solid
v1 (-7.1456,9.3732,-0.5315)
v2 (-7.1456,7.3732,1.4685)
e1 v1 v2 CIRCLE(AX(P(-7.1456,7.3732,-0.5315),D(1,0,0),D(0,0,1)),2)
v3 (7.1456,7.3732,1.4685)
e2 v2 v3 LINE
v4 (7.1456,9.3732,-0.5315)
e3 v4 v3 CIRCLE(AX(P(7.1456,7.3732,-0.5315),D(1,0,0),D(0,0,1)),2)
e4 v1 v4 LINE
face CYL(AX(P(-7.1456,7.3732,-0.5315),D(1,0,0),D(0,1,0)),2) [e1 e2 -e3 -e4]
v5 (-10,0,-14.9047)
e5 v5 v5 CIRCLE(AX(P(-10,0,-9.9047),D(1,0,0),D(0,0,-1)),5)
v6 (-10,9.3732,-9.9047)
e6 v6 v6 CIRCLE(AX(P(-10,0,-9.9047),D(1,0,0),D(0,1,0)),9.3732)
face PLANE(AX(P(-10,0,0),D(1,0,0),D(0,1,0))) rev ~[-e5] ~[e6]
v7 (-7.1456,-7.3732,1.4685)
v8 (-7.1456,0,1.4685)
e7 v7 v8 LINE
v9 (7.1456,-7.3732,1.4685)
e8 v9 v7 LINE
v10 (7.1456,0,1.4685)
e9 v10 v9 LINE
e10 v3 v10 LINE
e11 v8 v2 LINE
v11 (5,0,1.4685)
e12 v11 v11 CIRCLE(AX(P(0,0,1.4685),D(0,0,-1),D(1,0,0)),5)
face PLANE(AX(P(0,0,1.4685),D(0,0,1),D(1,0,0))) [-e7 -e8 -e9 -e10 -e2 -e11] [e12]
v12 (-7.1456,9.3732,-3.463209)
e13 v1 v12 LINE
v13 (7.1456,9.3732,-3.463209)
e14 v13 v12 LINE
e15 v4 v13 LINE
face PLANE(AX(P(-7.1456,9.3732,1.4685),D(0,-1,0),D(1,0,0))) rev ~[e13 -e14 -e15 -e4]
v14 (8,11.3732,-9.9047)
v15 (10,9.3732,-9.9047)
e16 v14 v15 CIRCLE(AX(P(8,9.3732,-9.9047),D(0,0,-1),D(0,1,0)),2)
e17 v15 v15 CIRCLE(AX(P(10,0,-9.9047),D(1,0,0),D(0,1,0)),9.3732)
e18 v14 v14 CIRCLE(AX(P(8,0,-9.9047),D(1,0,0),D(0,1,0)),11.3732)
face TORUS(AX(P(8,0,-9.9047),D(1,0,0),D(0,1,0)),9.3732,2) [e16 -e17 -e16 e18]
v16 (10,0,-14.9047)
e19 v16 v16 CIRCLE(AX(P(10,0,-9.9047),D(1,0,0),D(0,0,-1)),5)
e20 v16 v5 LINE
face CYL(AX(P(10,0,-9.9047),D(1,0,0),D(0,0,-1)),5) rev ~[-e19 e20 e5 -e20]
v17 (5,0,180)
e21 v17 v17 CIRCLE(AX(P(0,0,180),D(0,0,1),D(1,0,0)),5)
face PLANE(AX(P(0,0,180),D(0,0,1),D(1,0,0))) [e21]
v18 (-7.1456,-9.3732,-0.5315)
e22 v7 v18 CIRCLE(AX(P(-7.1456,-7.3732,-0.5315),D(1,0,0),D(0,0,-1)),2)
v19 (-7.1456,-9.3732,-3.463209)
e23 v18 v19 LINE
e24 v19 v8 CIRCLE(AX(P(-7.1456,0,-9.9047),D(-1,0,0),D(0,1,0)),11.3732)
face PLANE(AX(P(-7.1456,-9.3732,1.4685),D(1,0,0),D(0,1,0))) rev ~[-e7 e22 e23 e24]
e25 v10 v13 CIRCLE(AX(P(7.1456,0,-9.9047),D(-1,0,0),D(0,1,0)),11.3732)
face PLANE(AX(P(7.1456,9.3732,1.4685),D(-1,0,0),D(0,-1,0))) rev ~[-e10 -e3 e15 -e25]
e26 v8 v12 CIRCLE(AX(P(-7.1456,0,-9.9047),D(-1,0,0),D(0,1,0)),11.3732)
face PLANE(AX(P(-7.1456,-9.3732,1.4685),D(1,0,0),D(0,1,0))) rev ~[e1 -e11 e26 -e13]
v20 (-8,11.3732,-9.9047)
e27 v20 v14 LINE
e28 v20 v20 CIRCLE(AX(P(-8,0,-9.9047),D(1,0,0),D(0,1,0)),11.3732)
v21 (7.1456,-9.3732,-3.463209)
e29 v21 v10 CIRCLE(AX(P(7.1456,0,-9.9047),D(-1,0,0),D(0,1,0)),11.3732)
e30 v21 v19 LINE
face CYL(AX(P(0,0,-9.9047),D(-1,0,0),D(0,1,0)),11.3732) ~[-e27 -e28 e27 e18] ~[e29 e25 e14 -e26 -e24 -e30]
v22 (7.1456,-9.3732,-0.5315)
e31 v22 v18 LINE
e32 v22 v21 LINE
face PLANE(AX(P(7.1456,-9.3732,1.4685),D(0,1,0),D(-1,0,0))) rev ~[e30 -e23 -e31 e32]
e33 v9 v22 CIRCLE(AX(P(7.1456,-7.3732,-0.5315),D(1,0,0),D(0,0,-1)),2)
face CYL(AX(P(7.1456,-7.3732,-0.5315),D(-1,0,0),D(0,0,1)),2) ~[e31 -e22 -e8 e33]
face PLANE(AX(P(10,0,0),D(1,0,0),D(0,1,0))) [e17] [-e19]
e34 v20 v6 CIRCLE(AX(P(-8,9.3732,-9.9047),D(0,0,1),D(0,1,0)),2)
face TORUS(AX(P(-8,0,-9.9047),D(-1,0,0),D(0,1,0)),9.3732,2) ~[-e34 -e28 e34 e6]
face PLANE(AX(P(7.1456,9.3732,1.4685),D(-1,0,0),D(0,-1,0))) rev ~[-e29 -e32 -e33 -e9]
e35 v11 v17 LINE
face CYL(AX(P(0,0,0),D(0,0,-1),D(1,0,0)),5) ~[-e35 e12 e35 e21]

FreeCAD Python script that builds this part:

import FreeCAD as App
import Part
import Sketcher
Q = App.Units.Quantity


def edges_at(feature, points):
    """Names of the edges that pass closest to the given points."""
    edges = feature.Shape.Edges
    near = lambda p: min(range(len(edges)), key=lambda i: edges[i].distToShape(Part.Vertex(*p))[0])
    return sorted({f"Edge{near(p) + 1}" for p in points})

doc = App.newDocument("Part")
body = doc.addObject("PartDesign::Body", "Body")

# Sketch on XY plane
sketch1 = doc.addObject("Sketcher::SketchObject", "Sketch")
body.addObject(sketch1)
sketch1.AttachmentSupport = (doc.XY_Plane, [""])
sketch1.MapMode = "FlatFace"
sketch1.addGeometry(Part.Circle(App.Vector(0, 0, 0), App.Vector(0, 0, 1), 5), False)
sketch1.addConstraint(Sketcher.Constraint("Coincident", 0, 3, -1, 1))
sketch1.addConstraint(Sketcher.Constraint("Diameter", 0, Q("10 mm")))
pad1 = doc.addObject("PartDesign::Pad", "Pad")
body.addObject(pad1)
pad1.Profile = sketch1
pad1.Length = 180

# Sketch on YZ plane
sketch2 = doc.addObject("Sketcher::SketchObject", "Sketch001")
body.addObject(sketch2)
sketch2.AttachmentSupport = (doc.YZ_Plane, [""])
sketch2.MapMode = "FlatFace"
sketch2.addGeometry(Part.Circle(App.Vector(0, -10, 0), App.Vector(0, 0, 1), 11), False)
sketch2.addConstraint(Sketcher.Constraint("PointOnObject", 0, 3, -2))
sketch2.addConstraint(Sketcher.Constraint("Diameter", 0, Q("22.7464 mm")))
sketch2.addConstraint(Sketcher.Constraint("DistanceY", 0, 3, -1, 1, Q("9.9047 mm")))
pad2 = doc.addObject("PartDesign::Pad", "Pad001")
body.addObject(pad2)
pad2.Profile = sketch2
pad2.Length = 20
pad2.Midplane = True

# Sketch on YZ plane
sketch3 = doc.addObject("Sketcher::SketchObject", "Sketch002")
body.addObject(sketch3)
sketch3.AttachmentSupport = (doc.YZ_Plane, [""])
sketch3.MapMode = "FlatFace"
sketch3.AttachmentOffset = App.Placement(App.Vector(0, 0, 10), App.Rotation())
sketch3.addGeometry(Part.Circle(App.Vector(0, -10, 0), App.Vector(0, 0, 1), 5), False)
sketch3.addConstraint(Sketcher.Constraint("PointOnObject", 0, 3, -2))
sketch3.addConstraint(Sketcher.Constraint("Diameter", 0, Q("10 mm")))
sketch3.addConstraint(Sketcher.Constraint("DistanceY", 0, 3, -1, 1, Q("9.9047 mm")))
pocket1 = doc.addObject("PartDesign::Pocket", "Pocket")
body.addObject(pocket1)
pocket1.Profile = sketch3
pocket1.Length = 20
doc.recompute()

fillet = doc.addObject("PartDesign::Fillet", "Fillet")
body.addObject(fillet)
fillet.Base = (pocket1, edges_at(pocket1, [(10, -11.373, -9.905), (-10, -11.373, -9.905)]))
fillet.Radius = 2

# Sketch on XY plane
sketch4 = doc.addObject("Sketcher::SketchObject", "Sketch003")
body.addObject(sketch4)
sketch4.AttachmentSupport = (doc.XY_Plane, [""])
sketch4.MapMode = "FlatFace"
sketch4.AttachmentOffset = App.Placement(App.Vector(0, 0, 1.4685), App.Rotation())
sketch4.addGeometry(Part.LineSegment(App.Vector(7, 9, 0), App.Vector(-7, 9, 0)), False)
sketch4.addGeometry(Part.LineSegment(App.Vector(-7, 9, 0), App.Vector(-7, -9, 0)), False)
sketch4.addGeometry(Part.LineSegment(App.Vector(-7, -9, 0), App.Vector(7, -9, 0)), False)
sketch4.addGeometry(Part.LineSegment(App.Vector(7, -9, 0), App.Vector(7, 9, 0)), False)
sketch4.addConstraint(Sketcher.Constraint("Coincident", 0, 2, 1, 1))
sketch4.addConstraint(Sketcher.Constraint("Coincident", 1, 2, 2, 1))
sketch4.addConstraint(Sketcher.Constraint("Coincident", 2, 2, 3, 1))
sketch4.addConstraint(Sketcher.Constraint("Coincident", 3, 2, 0, 1))
sketch4.addConstraint(Sketcher.Constraint("Horizontal", 0))
sketch4.addConstraint(Sketcher.Constraint("Vertical", 1))
sketch4.addConstraint(Sketcher.Constraint("Horizontal", 2))
sketch4.addConstraint(Sketcher.Constraint("Vertical", 3))
sketch4.addConstraint(Sketcher.Constraint("Symmetric", 0, 2, 2, 2, -1, 1))
sketch4.addConstraint(Sketcher.Constraint("DistanceX", 0, 2, 0, 1, Q("14.2912 mm")))
sketch4.addConstraint(Sketcher.Constraint("DistanceY", 1, 2, 1, 1, Q("18.7464 mm")))
pad3 = doc.addObject("PartDesign::Pad", "Pad002")
body.addObject(pad3)
pad3.Profile = sketch4
pad3.Length = 5
pad3.Reversed = True
doc.recompute()

fillet2 = doc.addObject("PartDesign::Fillet", "Fillet001")
body.addObject(fillet2)
fillet2.Base = (pad3, edges_at(pad3, [(0, 9.373, 1.468), (0, -9.373, 1.468)]))
fillet2.Radius = 2

doc.recompute()
